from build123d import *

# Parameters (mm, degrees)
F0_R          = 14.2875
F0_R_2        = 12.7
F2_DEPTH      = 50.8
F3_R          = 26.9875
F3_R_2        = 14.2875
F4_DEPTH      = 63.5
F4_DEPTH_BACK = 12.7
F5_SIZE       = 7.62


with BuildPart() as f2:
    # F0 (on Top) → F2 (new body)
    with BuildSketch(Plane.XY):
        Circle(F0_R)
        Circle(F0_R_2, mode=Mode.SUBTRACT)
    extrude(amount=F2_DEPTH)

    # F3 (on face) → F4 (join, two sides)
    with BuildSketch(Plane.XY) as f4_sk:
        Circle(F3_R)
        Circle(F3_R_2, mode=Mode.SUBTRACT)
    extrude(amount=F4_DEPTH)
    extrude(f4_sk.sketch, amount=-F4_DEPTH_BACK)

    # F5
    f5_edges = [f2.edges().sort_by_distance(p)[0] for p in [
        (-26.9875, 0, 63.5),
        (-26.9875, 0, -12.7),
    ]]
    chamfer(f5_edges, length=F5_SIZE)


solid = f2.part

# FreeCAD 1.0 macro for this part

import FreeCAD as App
import Part
import Sketcher
from FreeCAD import Vector
Q = App.Units.Quantity


def edges_at(feature, points):
    """Names of the edges that pass closest to the given points."""
    edges = feature.Shape.Edges
    near = lambda p: min(range(len(edges)), key=lambda i: edges[i].distToShape(Part.Vertex(*p))[0])
    return sorted({f"Edge{near(p) + 1}" for p in points})

doc = App.newDocument("Part")
body = doc.addObject("PartDesign::Body", "Body")

# Sketch on XY plane
sketch1 = body.newObject("Sketcher::SketchObject", "Sketch")
sketch1.AttachmentSupport = (doc.getObject("XY_Plane"), [""])
sketch1.MapMode = "FlatFace"
sketch1.addGeometry([
    Part.Circle(Vector(0, 0, 0), Vector(0, 0, 1), 14),
    Part.Circle(Vector(0, 0, 0), Vector(0, 0, 1), 13),
], False)
sketch1.addConstraint([
    Sketcher.Constraint("Coincident", 0, 3, -1, 1),
    Sketcher.Constraint("Coincident", 1, 3, -1, 1),
    Sketcher.Constraint("Diameter", 1, Q("1 in")),
    Sketcher.Constraint("Diameter", 0, Q("1.125 in")),
])
pad1 = body.newObject("PartDesign::Pad", "Pad")
pad1.Profile = sketch1
pad1.Length = Q("2 in")

# Sketch on XY plane
sketch2 = body.newObject("Sketcher::SketchObject", "Sketch001")
sketch2.AttachmentSupport = (doc.getObject("XY_Plane"), [""])
sketch2.MapMode = "FlatFace"
sketch2.addGeometry([
    Part.Circle(Vector(0, 0, 0), Vector(0, 0, 1), 27),
    Part.Circle(Vector(0, 0, 0), Vector(0, 0, 1), 14),
], False)
sketch2.addConstraint([
    Sketcher.Constraint("Coincident", 0, 3, -1, 1),
    Sketcher.Constraint("Coincident", 1, 3, -1, 1),
    Sketcher.Constraint("Diameter", 0, Q("2.125 in")),
    Sketcher.Constraint("Diameter", 1, Q("1.125 in")),
])
pad2 = body.newObject("PartDesign::Pad", "Pad001")
pad2.Profile = sketch2
pad2.Type = "TwoLengths"
pad2.Length = Q("2.5 in")
pad2.Length2 = Q("0.5 in")
doc.recompute()

chamfer = body.newObject("PartDesign::Chamfer", "Chamfer")
chamfer.Base = (pad2, edges_at(pad2, [(-26.988, 0, 63.5), (-26.988, 0, -12.7)]))
chamfer.Size = Q("0.3 in")

doc.recompute()
